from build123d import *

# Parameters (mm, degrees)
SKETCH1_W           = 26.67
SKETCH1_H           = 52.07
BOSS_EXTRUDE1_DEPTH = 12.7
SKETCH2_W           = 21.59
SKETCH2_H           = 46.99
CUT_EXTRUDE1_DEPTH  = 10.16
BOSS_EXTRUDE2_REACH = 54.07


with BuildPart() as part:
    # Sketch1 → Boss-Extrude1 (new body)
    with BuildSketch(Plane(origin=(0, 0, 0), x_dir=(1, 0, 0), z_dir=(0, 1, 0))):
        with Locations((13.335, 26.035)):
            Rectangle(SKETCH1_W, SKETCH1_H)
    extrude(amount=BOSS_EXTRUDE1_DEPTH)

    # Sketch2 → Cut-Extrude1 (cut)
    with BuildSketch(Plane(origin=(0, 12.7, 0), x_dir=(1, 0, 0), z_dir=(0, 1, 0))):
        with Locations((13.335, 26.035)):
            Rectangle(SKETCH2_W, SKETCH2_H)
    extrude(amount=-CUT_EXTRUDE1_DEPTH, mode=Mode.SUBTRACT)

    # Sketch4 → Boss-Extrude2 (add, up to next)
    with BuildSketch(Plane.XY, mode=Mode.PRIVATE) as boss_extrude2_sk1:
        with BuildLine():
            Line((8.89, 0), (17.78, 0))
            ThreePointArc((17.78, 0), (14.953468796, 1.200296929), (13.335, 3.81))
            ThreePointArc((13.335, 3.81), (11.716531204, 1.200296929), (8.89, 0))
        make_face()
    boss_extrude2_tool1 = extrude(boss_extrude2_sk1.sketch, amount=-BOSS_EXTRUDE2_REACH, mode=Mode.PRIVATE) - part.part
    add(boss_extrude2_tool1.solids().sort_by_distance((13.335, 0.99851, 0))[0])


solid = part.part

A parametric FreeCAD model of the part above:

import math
import FreeCAD as App
import Part
import Sketcher
from FreeCAD import Vector
Q = App.Units.Quantity

doc = App.newDocument("Part")
body = doc.addObject("PartDesign::Body", "Body")

sketch1 = body.newObject("Sketcher::SketchObject", "Sketch")
sketch1.AttachmentSupport = (doc.getObject("XZ_Plane"), [""])
sketch1.MapMode = "FlatFace"
sketch1.addGeometry([
    Part.LineSegment(Vector(0, -52, 0), Vector(0, 0, 0)),
    Part.LineSegment(Vector(0, 0, 0), Vector(27, 0, 0)),
    Part.LineSegment(Vector(27, 0, 0), Vector(27, -52, 0)),
    Part.LineSegment(Vector(27, -52, 0), Vector(0, -52, 0)),
], False)
sketch1.addConstraint([
    Sketcher.Constraint("Coincident", 0, 2, 1, 1),
    Sketcher.Constraint("Coincident", 1, 2, 2, 1),
    Sketcher.Constraint("Coincident", 2, 2, 3, 1),
    Sketcher.Constraint("Coincident", 3, 2, 0, 1),
    Sketcher.Constraint("Vertical", 0),
    Sketcher.Constraint("Horizontal", 1),
    Sketcher.Constraint("Vertical", 2),
    Sketcher.Constraint("Horizontal", 3),
    Sketcher.Constraint("Coincident", 0, 2, -1, 1),
    Sketcher.Constraint("DistanceX", 1, 1, 1, 2, Q("1.05 in")),
    Sketcher.Constraint("DistanceY", 0, 1, 0, 2, Q("2.05 in")),
])
pad1 = body.newObject("PartDesign::Pad", "Pad")
pad1.Profile = sketch1
pad1.Length = Q("0.5 in")
pad1.Reversed = True

sketch2 = body.newObject("Sketcher::SketchObject", "Sketch001")
sketch2.AttachmentSupport = (doc.getObject("XZ_Plane"), [""])
sketch2.MapMode = "FlatFace"
sketch2.AttachmentOffset = App.Placement(Vector(0, 0, -0.5 * 25.4), App.Rotation())
sketch2.addGeometry([
    Part.LineSegment(Vector(3, -50, 0), Vector(3, -3, 0)),
    Part.LineSegment(Vector(3, -3, 0), Vector(24, -3, 0)),
    Part.LineSegment(Vector(24, -3, 0), Vector(24, -50, 0)),
    Part.LineSegment(Vector(24, -50, 0), Vector(3, -50, 0)),
], False)
sketch2.addConstraint([
    Sketcher.Constraint("Coincident", 0, 2, 1, 1),
    Sketcher.Constraint("Coincident", 1, 2, 2, 1),
    Sketcher.Constraint("Coincident", 2, 2, 3, 1),
    Sketcher.Constraint("Coincident", 3, 2, 0, 1),
    Sketcher.Constraint("Vertical", 0),
    Sketcher.Constraint("Horizontal", 1),
    Sketcher.Constraint("Vertical", 2),
    Sketcher.Constraint("Horizontal", 3),
    Sketcher.Constraint("DistanceX", 1, 1, 1, 2, Q("0.85 in")),
    Sketcher.Constraint("DistanceY", 0, 1, 0, 2, Q("1.85 in")),
    Sketcher.Constraint("DistanceX", -1, 1, 0, 2, Q("0.1 in")),
    Sketcher.Constraint("DistanceY", 0, 2, -1, 1, Q("0.1 in")),
])
pocket1 = body.newObject("PartDesign::Pocket", "Pocket")
pocket1.Profile = sketch2
pocket1.Length = Q("0.4 in")
pocket1.Reversed = True

sketch3 = body.newObject("Sketcher::SketchObject", "Sketch002")
sketch3.AttachmentSupport = (doc.getObject("XY_Plane"), [""])
sketch3.MapMode = "FlatFace"
sketch3.addGeometry([
    Part.LineSegment(Vector(9, 0, 0), Vector(18, 0, 0)),
    Part.ArcOfCircle(Part.Circle(Vector(18, 5, 0), Vector(0, 0, 1), 5), math.radians(-166), math.radians(-95)),
    Part.ArcOfCircle(Part.Circle(Vector(8, 5, 0), Vector(0, 0, 1), 5), math.radians(-85), math.radians(-14)),
], False)
sketch3.addConstraint([
    Sketcher.Constraint("Coincident", 0, 2, 1, 2),
    Sketcher.Constraint("Coincident", 1, 1, 2, 2),
    Sketcher.Constraint("Coincident", 2, 1, 0, 1),
    Sketcher.Constraint("Horizontal", 0),
    Sketcher.Constraint("Equal", 1, 2),
    Sketcher.Constraint("PointOnObject", 0, 2, -1),
    Sketcher.Constraint("Horizontal", 1, 3, 2, 3),
    Sketcher.Constraint("Radius", 1, Q("0.2 in")),
    Sketcher.Constraint("DistanceX", 0, 1, 0, 2, Q("0.35 in")),
    Sketcher.Constraint("DistanceX", -1, 1, 0, 2, Q("0.7 in")),
    Sketcher.Constraint("DistanceY", -1, 1, 1, 1, Q("0.15 in")),
])
pad2 = body.newObject("PartDesign::Pad", "Pad001")
pad2.Profile = sketch3
pad2.Type = "UpToFirst"
pad2.Reversed = True

doc.recompute()
